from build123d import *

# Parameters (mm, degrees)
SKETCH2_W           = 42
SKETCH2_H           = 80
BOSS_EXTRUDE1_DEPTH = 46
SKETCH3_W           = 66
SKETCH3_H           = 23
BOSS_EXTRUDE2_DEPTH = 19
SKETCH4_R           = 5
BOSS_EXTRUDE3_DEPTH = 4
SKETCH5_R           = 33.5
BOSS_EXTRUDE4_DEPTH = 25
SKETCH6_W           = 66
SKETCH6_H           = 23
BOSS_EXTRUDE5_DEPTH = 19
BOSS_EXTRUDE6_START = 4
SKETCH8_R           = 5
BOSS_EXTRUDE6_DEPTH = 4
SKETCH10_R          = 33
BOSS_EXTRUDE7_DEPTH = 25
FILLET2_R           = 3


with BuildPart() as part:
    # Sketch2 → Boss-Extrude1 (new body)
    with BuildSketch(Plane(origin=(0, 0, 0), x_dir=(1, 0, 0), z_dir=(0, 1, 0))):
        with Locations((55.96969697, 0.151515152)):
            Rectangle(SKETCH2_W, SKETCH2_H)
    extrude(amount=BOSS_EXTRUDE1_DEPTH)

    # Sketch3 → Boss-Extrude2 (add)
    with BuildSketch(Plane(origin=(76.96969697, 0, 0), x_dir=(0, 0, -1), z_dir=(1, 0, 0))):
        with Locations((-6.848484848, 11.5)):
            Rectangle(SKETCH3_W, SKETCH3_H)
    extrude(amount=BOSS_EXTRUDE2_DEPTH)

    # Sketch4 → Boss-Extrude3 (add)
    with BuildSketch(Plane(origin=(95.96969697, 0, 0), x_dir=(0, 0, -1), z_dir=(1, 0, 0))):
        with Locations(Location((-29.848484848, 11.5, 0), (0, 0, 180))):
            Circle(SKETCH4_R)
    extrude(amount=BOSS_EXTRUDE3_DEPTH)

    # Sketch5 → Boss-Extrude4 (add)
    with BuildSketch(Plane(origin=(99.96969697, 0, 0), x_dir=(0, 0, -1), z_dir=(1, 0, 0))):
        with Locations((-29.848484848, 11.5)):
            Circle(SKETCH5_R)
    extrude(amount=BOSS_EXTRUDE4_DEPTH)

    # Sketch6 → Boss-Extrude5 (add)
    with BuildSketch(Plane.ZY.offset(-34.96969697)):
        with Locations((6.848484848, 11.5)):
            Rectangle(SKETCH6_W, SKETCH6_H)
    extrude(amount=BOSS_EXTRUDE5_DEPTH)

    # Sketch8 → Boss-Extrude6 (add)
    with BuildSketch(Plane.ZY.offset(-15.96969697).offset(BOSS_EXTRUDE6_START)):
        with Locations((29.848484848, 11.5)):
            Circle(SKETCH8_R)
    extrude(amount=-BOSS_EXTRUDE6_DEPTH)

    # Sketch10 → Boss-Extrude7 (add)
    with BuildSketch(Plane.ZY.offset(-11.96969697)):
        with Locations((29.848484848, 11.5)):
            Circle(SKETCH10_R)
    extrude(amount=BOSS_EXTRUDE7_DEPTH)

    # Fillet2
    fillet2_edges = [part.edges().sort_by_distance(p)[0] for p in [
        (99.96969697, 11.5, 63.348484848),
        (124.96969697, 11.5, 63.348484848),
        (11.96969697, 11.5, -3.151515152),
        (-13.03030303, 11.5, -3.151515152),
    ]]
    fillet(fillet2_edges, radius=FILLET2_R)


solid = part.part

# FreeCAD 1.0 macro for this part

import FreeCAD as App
import Part
import Sketcher

V = App.Vector
Q = App.Units.Quantity


def edges_at(feature, points):
    """Names of the edges that pass closest to the given points."""
    edges = feature.Shape.Edges
    near = lambda p: min(range(len(edges)), key=lambda i: edges[i].distToShape(Part.Vertex(*p))[0])
    return sorted({f"Edge{near(p) + 1}" for p in points})


def add_polygon(sketch, points):
    """Adds a closed chain of lines whose ends are joined by coincident constraints."""
    first, n = sketch.GeometryCount, len(points)
    for a, b in zip(points, points[1:] + points[:1]):
        sketch.addGeometry(Part.LineSegment(App.Vector(*a, 0), App.Vector(*b, 0)), False)
    for i in range(n):
        sketch.addConstraint(Sketcher.Constraint("Coincident", first + i, 2, first + (i + 1) % n, 1))

doc = App.newDocument("Part")
body = doc.addObject("PartDesign::Body", "Body")

# Sketch on XZ plane
sketch1 = body.newObject("Sketcher::SketchObject", "Sketch")
sketch1.AttachmentSupport = (doc.getObject("XZ_Plane"), [""])
sketch1.MapMode = "FlatFace"
add_polygon(sketch1, [(34.969697, -40.151515), (34.969697, 39.848485), (76.969697, 39.848485), (76.969697, -40.151515)])  # lines 0-3
sketch1.addConstraint([
    Sketcher.Constraint("Vertical", 0),
    Sketcher.Constraint("Horizontal", 1),
    Sketcher.Constraint("Vertical", 2),
    Sketcher.Constraint("Horizontal", 3),
    Sketcher.Constraint("DistanceX", 1, 1, 1, 2, Q("42 mm")),
    Sketcher.Constraint("DistanceY", 0, 1, 0, 2, Q("80 mm")),
    Sketcher.Constraint("DistanceX", -1, 1, 0, 2, Q("34.969697 mm")),
    Sketcher.Constraint("DistanceY", -1, 1, 0, 2, Q("39.848485 mm")),
])
pad1 = body.newObject("PartDesign::Pad", "Pad")
pad1.Profile = sketch1
pad1.Length = 46
pad1.Reversed = True

# Sketch on YZ plane
sketch2 = body.newObject("Sketcher::SketchObject", "Sketch001")
sketch2.AttachmentSupport = (doc.getObject("YZ_Plane"), [""])
sketch2.MapMode = "FlatFace"
sketch2.AttachmentOffset = App.Placement(V(0, 0, 76.969697), App.Rotation())
add_polygon(sketch2, [(23, 39.848485), (0, 39.848485), (0, -26.151515), (23, -26.151515)])  # lines 0-3
sketch2.addConstraint([
    Sketcher.Constraint("Horizontal", 0),
    Sketcher.Constraint("Vertical", 1),
    Sketcher.Constraint("Horizontal", 2),
    Sketcher.Constraint("Vertical", 3),
    Sketcher.Constraint("PointOnObject", 0, 2, -2),
    Sketcher.Constraint("DistanceX", 0, 2, 0, 1, Q("23 mm")),
    Sketcher.Constraint("DistanceY", 1, 2, 1, 1, Q("66 mm")),
    Sketcher.Constraint("DistanceY", -1, 1, 0, 2, Q("39.848485 mm")),
])
pad2 = body.newObject("PartDesign::Pad", "Pad001")
pad2.Profile = sketch2
pad2.Length = 19

# Sketch on YZ plane
sketch3 = body.newObject("Sketcher::SketchObject", "Sketch002")
sketch3.AttachmentSupport = (doc.getObject("YZ_Plane"), [""])
sketch3.MapMode = "FlatFace"
sketch3.AttachmentOffset = App.Placement(V(0, 0, 95.969697), App.Rotation())
sketch3.addGeometry(Part.Circle(V(11.5, 29.848485, 0), V(0, 0, 1), 5), False)
sketch3.addConstraint([
    Sketcher.Constraint("Diameter", 0, Q("10 mm")),
    Sketcher.Constraint("DistanceX", -1, 1, 0, 3, Q("11.5 mm")),
    Sketcher.Constraint("DistanceY", -1, 1, 0, 3, Q("29.848485 mm")),
])
pad3 = body.newObject("PartDesign::Pad", "Pad002")
pad3.Profile = sketch3
pad3.Length = 4

# Sketch on YZ plane
sketch4 = body.newObject("Sketcher::SketchObject", "Sketch003")
sketch4.AttachmentSupport = (doc.getObject("YZ_Plane"), [""])
sketch4.MapMode = "FlatFace"
sketch4.AttachmentOffset = App.Placement(V(0, 0, 99.969697), App.Rotation())
sketch4.addGeometry(Part.Circle(V(11.5, 29.848485, 0), V(0, 0, 1), 33.5), False)
sketch4.addConstraint([
    Sketcher.Constraint("Diameter", 0, Q("67 mm")),
    Sketcher.Constraint("DistanceX", -1, 1, 0, 3, Q("11.5 mm")),
    Sketcher.Constraint("DistanceY", -1, 1, 0, 3, Q("29.848485 mm")),
])
pad4 = body.newObject("PartDesign::Pad", "Pad003")
pad4.Profile = sketch4
pad4.Length = 25

# Sketch on YZ plane
sketch5 = body.newObject("Sketcher::SketchObject", "Sketch004")
sketch5.AttachmentSupport = (doc.getObject("YZ_Plane"), [""])
sketch5.MapMode = "FlatFace"
sketch5.AttachmentOffset = App.Placement(V(0, 0, 34.969697), App.Rotation())
add_polygon(sketch5, [(23, -26.151515), (0, -26.151515), (0, 39.848485), (23, 39.848485)])  # lines 0-3
sketch5.addConstraint([
    Sketcher.Constraint("Horizontal", 0),
    Sketcher.Constraint("Vertical", 1),
    Sketcher.Constraint("Horizontal", 2),
    Sketcher.Constraint("Vertical", 3),
    Sketcher.Constraint("PointOnObject", 0, 2, -2),
    Sketcher.Constraint("DistanceX", 0, 2, 0, 1, Q("23 mm")),
    Sketcher.Constraint("DistanceY", 1, 1, 1, 2, Q("66 mm")),
    Sketcher.Constraint("DistanceY", 0, 2, -1, 1, Q("26.151515 mm")),
])
pad5 = body.newObject("PartDesign::Pad", "Pad004")
pad5.Profile = sketch5
pad5.Length = 19
pad5.Reversed = True

# Sketch on YZ plane
sketch6 = body.newObject("Sketcher::SketchObject", "Sketch005")
sketch6.AttachmentSupport = (doc.getObject("YZ_Plane"), [""])
sketch6.MapMode = "FlatFace"
sketch6.AttachmentOffset = App.Placement(V(0, 0, 11.969697), App.Rotation())
sketch6.addGeometry(Part.Circle(V(11.5, 29.848485, 0), V(0, 0, 1), 5), False)
sketch6.addConstraint([
    Sketcher.Constraint("Diameter", 0, Q("10 mm")),
    Sketcher.Constraint("DistanceX", -1, 1, 0, 3, Q("11.5 mm")),
    Sketcher.Constraint("DistanceY", -1, 1, 0, 3, Q("29.848485 mm")),
])
pad6 = body.newObject("PartDesign::Pad", "Pad005")
pad6.Profile = sketch6
pad6.Length = 4

# Sketch on YZ plane
sketch7 = body.newObject("Sketcher::SketchObject", "Sketch006")
sketch7.AttachmentSupport = (doc.getObject("YZ_Plane"), [""])
sketch7.MapMode = "FlatFace"
sketch7.AttachmentOffset = App.Placement(V(0, 0, 11.969697), App.Rotation())
sketch7.addGeometry(Part.Circle(V(11.5, 29.848485, 0), V(0, 0, 1), 33), False)
sketch7.addConstraint([
    Sketcher.Constraint("Diameter", 0, Q("66 mm")),
    Sketcher.Constraint("DistanceX", -1, 1, 0, 3, Q("11.5 mm")),
    Sketcher.Constraint("DistanceY", -1, 1, 0, 3, Q("29.848485 mm")),
])
pad7 = body.newObject("PartDesign::Pad", "Pad006")
pad7.Profile = sketch7
pad7.Length = 25
pad7.Reversed = True
doc.recompute()

fillet = body.newObject("PartDesign::Fillet", "Fillet")
fillet.Base = (pad7, edges_at(pad7, [
    (99.97, 11.5, 63.348),
    (124.97, 11.5, 63.348),
    (11.97, 11.5, -3.152),
    (-13.03, 11.5, -3.152),
]))
fillet.Radius = 3

doc.recompute()
